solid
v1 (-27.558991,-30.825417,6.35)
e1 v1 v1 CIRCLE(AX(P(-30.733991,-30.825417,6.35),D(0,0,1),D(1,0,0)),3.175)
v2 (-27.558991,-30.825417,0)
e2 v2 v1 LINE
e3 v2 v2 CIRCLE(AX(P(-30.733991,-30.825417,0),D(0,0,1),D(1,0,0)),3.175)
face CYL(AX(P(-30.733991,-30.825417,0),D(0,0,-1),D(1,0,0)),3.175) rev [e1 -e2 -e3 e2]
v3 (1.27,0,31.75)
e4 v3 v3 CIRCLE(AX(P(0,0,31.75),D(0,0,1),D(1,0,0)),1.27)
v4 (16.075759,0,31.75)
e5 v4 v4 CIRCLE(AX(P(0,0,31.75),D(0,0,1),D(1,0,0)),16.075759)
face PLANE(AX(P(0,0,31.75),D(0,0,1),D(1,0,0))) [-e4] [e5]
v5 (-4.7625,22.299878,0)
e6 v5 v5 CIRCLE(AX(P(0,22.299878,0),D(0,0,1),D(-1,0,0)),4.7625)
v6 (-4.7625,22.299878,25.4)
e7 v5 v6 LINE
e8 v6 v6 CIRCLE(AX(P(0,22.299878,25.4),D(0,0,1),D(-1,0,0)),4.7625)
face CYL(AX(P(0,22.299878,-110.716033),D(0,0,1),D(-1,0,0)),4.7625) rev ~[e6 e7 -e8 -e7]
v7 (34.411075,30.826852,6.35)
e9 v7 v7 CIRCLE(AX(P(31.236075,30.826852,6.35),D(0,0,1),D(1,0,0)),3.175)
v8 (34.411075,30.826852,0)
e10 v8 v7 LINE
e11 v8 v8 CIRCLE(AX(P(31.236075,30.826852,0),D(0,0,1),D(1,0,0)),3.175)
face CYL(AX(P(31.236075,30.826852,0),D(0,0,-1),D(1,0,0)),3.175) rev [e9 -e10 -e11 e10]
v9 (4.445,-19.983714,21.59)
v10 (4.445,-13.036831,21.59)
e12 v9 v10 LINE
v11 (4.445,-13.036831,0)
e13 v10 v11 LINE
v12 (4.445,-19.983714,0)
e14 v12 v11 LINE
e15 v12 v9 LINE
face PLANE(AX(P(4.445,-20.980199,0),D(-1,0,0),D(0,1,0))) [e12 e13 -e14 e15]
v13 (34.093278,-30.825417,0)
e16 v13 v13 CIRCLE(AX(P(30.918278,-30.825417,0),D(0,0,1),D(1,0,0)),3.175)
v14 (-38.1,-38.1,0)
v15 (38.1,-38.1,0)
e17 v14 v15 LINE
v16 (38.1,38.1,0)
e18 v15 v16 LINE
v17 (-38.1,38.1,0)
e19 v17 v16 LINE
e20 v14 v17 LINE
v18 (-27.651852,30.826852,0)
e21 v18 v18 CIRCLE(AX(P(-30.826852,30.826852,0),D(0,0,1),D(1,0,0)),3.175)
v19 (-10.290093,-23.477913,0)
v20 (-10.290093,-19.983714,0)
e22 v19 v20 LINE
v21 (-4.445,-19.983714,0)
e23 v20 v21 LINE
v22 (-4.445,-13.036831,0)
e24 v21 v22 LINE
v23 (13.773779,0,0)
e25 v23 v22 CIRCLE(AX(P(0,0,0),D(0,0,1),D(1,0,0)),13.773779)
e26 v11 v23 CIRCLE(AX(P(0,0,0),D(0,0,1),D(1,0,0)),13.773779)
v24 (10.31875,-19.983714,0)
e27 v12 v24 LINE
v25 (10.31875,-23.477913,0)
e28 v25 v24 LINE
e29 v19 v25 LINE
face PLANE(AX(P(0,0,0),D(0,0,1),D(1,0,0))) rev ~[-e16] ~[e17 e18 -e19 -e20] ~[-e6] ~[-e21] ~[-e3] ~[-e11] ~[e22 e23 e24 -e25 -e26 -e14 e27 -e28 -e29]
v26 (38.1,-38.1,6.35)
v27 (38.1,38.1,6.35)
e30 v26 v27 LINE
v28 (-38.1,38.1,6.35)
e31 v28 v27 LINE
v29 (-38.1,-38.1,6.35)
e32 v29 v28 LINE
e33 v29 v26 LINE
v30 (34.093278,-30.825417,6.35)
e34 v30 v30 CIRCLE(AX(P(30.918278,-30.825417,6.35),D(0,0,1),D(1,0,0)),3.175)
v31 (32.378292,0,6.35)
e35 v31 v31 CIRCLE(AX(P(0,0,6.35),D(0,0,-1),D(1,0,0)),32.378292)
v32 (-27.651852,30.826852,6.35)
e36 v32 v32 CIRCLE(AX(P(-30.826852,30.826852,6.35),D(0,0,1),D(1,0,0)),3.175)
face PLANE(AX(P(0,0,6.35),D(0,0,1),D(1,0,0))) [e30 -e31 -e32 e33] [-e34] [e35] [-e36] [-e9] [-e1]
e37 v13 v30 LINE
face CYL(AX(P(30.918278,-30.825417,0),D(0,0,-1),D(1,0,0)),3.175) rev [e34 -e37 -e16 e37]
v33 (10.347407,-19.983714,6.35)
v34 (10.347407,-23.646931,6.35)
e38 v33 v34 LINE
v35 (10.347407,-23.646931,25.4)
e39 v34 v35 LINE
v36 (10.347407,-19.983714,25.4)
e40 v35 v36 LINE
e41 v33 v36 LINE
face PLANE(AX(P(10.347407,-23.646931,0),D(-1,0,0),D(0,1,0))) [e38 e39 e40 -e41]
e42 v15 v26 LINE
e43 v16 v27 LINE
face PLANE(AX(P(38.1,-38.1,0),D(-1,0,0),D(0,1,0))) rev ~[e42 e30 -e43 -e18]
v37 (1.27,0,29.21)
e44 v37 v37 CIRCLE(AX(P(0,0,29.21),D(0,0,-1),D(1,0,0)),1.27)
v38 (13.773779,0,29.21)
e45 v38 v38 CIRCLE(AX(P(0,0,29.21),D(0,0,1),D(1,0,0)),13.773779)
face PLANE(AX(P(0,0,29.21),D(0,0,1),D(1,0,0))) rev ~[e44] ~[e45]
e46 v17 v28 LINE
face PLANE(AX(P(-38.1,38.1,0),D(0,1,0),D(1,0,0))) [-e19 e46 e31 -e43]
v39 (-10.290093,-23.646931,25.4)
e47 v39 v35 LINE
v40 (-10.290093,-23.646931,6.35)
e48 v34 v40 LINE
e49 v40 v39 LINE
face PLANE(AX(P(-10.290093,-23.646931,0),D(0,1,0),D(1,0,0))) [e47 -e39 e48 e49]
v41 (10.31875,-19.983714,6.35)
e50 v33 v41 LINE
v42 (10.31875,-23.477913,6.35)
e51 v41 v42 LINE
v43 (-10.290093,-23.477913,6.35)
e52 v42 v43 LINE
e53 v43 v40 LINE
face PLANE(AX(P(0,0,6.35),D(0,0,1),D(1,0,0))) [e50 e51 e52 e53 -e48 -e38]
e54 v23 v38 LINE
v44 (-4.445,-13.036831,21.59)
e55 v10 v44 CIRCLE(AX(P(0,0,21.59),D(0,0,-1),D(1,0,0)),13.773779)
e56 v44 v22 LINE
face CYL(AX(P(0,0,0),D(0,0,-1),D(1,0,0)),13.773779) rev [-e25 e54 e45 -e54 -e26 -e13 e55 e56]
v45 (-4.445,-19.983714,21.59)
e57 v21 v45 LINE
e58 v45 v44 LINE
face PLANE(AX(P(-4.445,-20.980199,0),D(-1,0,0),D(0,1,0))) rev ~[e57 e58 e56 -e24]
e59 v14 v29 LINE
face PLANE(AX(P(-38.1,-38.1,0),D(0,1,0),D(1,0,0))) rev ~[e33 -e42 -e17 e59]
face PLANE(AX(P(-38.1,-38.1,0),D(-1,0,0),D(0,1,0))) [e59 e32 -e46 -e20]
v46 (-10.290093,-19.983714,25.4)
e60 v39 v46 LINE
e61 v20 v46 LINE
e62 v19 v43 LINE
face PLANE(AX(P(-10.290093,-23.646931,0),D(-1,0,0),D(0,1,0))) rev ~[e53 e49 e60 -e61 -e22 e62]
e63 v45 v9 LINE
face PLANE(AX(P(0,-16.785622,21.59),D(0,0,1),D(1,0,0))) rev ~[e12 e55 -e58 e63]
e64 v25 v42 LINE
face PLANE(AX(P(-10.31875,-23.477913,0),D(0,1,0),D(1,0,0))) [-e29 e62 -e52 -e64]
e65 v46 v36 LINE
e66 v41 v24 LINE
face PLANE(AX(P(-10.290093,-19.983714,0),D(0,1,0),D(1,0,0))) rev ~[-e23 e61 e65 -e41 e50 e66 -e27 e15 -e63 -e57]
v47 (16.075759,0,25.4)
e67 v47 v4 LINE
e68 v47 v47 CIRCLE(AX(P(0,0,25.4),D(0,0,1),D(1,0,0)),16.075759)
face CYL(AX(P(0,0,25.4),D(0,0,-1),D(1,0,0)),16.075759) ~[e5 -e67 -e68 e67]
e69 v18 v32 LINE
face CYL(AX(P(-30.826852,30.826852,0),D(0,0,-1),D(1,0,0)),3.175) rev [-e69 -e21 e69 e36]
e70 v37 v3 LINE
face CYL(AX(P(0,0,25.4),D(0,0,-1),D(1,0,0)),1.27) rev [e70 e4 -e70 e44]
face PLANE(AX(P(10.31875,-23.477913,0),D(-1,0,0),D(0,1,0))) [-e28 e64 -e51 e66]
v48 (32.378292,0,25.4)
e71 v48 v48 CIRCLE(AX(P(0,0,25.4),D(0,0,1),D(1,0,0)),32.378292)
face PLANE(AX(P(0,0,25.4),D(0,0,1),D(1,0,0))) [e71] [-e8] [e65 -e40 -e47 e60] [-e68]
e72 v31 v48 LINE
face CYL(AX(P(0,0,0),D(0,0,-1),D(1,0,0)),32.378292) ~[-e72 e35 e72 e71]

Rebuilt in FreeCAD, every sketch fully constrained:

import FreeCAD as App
import Part
import Sketcher
Q = App.Units.Quantity

doc = App.newDocument("Part")
body = doc.addObject("PartDesign::Body", "Body")

# Sketch on XY plane
sketch1 = body.newObject("Sketcher::SketchObject", "Sketch")
sketch1.AttachmentSupport = (doc.getObject("XY_Plane"), [""])
sketch1.MapMode = "FlatFace"
sketch1.addGeometry([
    Part.LineSegment(App.Vector(-38.1, 38.1, 0), App.Vector(-38.1, -38.1, 0)),  # 0
    Part.LineSegment(App.Vector(-38.1, -38.1, 0), App.Vector(38.1, -38.1, 0)),  # 1
    Part.LineSegment(App.Vector(38.1, -38.1, 0), App.Vector(38.1, 38.1, 0)),  # 2
    Part.LineSegment(App.Vector(38.1, 38.1, 0), App.Vector(-38.1, 38.1, 0)),  # 3
    Part.Circle(App.Vector(-30.7, -30.8, 0), App.Vector(0, 0, 1), 3.2),  # 4
    Part.Circle(App.Vector(30.9, -30.8, 0), App.Vector(0, 0, 1), 3.2),  # 5
    Part.Circle(App.Vector(-30.8, 30.8, 0), App.Vector(0, 0, 1), 3.2),  # 6
    Part.Circle(App.Vector(31.2, 30.8, 0), App.Vector(0, 0, 1), 3.2),  # 7
], False)
sketch1.addConstraint([
    Sketcher.Constraint("Coincident", 0, 2, 1, 1),
    Sketcher.Constraint("Coincident", 1, 2, 2, 1),
    Sketcher.Constraint("Coincident", 2, 2, 3, 1),
    Sketcher.Constraint("Coincident", 3, 2, 0, 1),
    Sketcher.Constraint("Vertical", 0),
    Sketcher.Constraint("Horizontal", 1),
    Sketcher.Constraint("Vertical", 2),
    Sketcher.Constraint("Horizontal", 3),
    Sketcher.Constraint("Equal", 4, 5),
    Sketcher.Constraint("Equal", 5, 6),
    Sketcher.Constraint("Equal", 6, 7),
    Sketcher.Constraint("Symmetric", 0, 2, 2, 2, -1, 1),
    Sketcher.Constraint("Horizontal", 4, 3, 5, 3),
    Sketcher.Constraint("Horizontal", 6, 3, 7, 3),
    Sketcher.Constraint("Equal", 3, 0),
    Sketcher.Constraint("Diameter", 4, Q("0.25 in")),
    Sketcher.Constraint("DistanceX", 1, 1, 1, 2, Q("3 in")),
    Sketcher.Constraint("DistanceX", 4, 3, -1, 1, 30.733991),
    Sketcher.Constraint("DistanceX", 6, 3, -1, 1, 30.826852),
    Sketcher.Constraint("DistanceY", -1, 1, 6, 3, 30.826852),
    Sketcher.Constraint("DistanceX", 4, 3, 5, 3, 61.652269),
    Sketcher.Constraint("DistanceY", 4, 3, 6, 3, 61.652269),
    Sketcher.Constraint("DistanceX", -1, 1, 7, 3, 31.236075),
])
pad1 = body.newObject("PartDesign::Pad", "Pad")
pad1.Profile = sketch1
pad1.Length = Q("0.25 in")

# Sketch on XY plane
sketch2 = body.newObject("Sketcher::SketchObject", "Sketch001")
sketch2.AttachmentSupport = (doc.getObject("XY_Plane"), [""])
sketch2.MapMode = "FlatFace"
sketch2.addGeometry(Part.Circle(App.Vector(0, 0, 0), App.Vector(0, 0, 1), 14), False)
sketch2.addConstraint([
    Sketcher.Constraint("Coincident", 0, 3, -1, 1),
    Sketcher.Constraint("Diameter", 0, 27.547559),
])
pocket1 = body.newObject("PartDesign::Pocket", "Pocket")
pocket1.Profile = sketch2
pocket1.Length = Q("1 in")
pocket1.Reversed = True

# Sketch on XY plane
sketch3 = body.newObject("Sketcher::SketchObject", "Sketch002")
sketch3.AttachmentSupport = (doc.getObject("XY_Plane"), [""])
sketch3.MapMode = "FlatFace"
sketch3.addGeometry(Part.Circle(App.Vector(0, 22, 0), App.Vector(0, 0, 1), 5), False)
sketch3.addConstraint([
    Sketcher.Constraint("PointOnObject", 0, 3, -2),
    Sketcher.Constraint("Diameter", 0, 10.399635),
    Sketcher.Constraint("DistanceY", -1, 1, 0, 3, 22.299878),
])
pocket2 = body.newObject("PartDesign::Pocket", "Pocket001")
pocket2.Profile = sketch3
pocket2.Length = Q("1 in")
pocket2.Reversed = True

# Sketch on XY plane
sketch4 = body.newObject("Sketcher::SketchObject", "Sketch003")
sketch4.AttachmentSupport = (doc.getObject("XY_Plane"), [""])
sketch4.MapMode = "FlatFace"
sketch4.addGeometry([
    Part.LineSegment(App.Vector(-10.3, -19.8, 0), App.Vector(-10.3, -23.5, 0)),
    Part.LineSegment(App.Vector(-10.3, -23.5, 0), App.Vector(10.3, -23.5, 0)),
    Part.LineSegment(App.Vector(10.3, -23.5, 0), App.Vector(10.3, -19.8, 0)),
    Part.LineSegment(App.Vector(10.3, -19.8, 0), App.Vector(-10.3, -19.8, 0)),
], False)
sketch4.addConstraint([
    Sketcher.Constraint("Coincident", 0, 2, 1, 1),
    Sketcher.Constraint("Coincident", 1, 2, 2, 1),
    Sketcher.Constraint("Coincident", 2, 2, 3, 1),
    Sketcher.Constraint("Coincident", 3, 2, 0, 1),
    Sketcher.Constraint("Vertical", 0),
    Sketcher.Constraint("Horizontal", 1),
    Sketcher.Constraint("Vertical", 2),
    Sketcher.Constraint("Horizontal", 3),
    Sketcher.Constraint("DistanceX", 1, 1, 1, 2, Q("0.8125 in")),
    Sketcher.Constraint("DistanceX", 0, 2, -1, 1, Q("0.40625 in")),
    Sketcher.Constraint("DistanceY", 0, 2, 0, 1, 3.628571),
    Sketcher.Constraint("DistanceY", 2, 2, -1, 1, 19.849341),
])
pocket3 = body.newObject("PartDesign::Pocket", "Pocket002")
pocket3.Profile = sketch4
pocket3.Length = Q("1 in")
pocket3.Reversed = True

# Sketch on XY plane
sketch5 = body.newObject("Sketcher::SketchObject", "Sketch004")
sketch5.AttachmentSupport = (doc.getObject("XY_Plane"), [""])
sketch5.MapMode = "FlatFace"
sketch5.addGeometry([
    Part.Circle(App.Vector(0, 0, 0), App.Vector(0, 0, 1), 32.4),  # 0
    Part.LineSegment(App.Vector(10.3, -23.6, 0), App.Vector(-10.3, -23.6, 0)),  # 1
    Part.LineSegment(App.Vector(-10.3, -23.6, 0), App.Vector(-10.3, -20, 0)),  # 2
    Part.LineSegment(App.Vector(-10.3, -20, 0), App.Vector(10.3, -20, 0)),  # 3
    Part.LineSegment(App.Vector(10.3, -20, 0), App.Vector(10.3, -23.6, 0)),  # 4
], False)
sketch5.addConstraint([
    Sketcher.Constraint("Coincident", 1, 2, 2, 1),
    Sketcher.Constraint("Coincident", 2, 2, 3, 1),
    Sketcher.Constraint("Coincident", 3, 2, 4, 1),
    Sketcher.Constraint("Coincident", 4, 2, 1, 1),
    Sketcher.Constraint("Horizontal", 1),
    Sketcher.Constraint("Vertical", 2),
    Sketcher.Constraint("Horizontal", 3),
    Sketcher.Constraint("Vertical", 4),
    Sketcher.Constraint("Coincident", 0, 3, -1, 1),
    Sketcher.Constraint("DistanceX", 1, 2, 1, 1, Q("0.8125 in")),
    Sketcher.Constraint("Diameter", 0, 64.756585),
    Sketcher.Constraint("DistanceY", 2, 1, 2, 2, 3.663217),
    Sketcher.Constraint("DistanceY", 1, 2, -1, 1, 23.646931),
    Sketcher.Constraint("DistanceX", 1, 2, -1, 1, 10.290093),
])
pad2 = body.newObject("PartDesign::Pad", "Pad001")
pad2.Profile = sketch5
pad2.Length = Q("1 in")

# Sketch on XY plane
sketch6 = body.newObject("Sketcher::SketchObject", "Sketch005")
sketch6.AttachmentSupport = (doc.getObject("XY_Plane"), [""])
sketch6.MapMode = "FlatFace"
sketch6.addGeometry(Part.Circle(App.Vector(0, 22.3, 0), App.Vector(0, 0, 1), 4.8), False)
sketch6.addConstraint([
    Sketcher.Constraint("PointOnObject", 0, 3, -2),
    Sketcher.Constraint("Diameter", 0, Q("0.375 in")),
    Sketcher.Constraint("DistanceY", -1, 1, 0, 3, 22.299878),
])
doc.recompute()
hole = body.newObject("PartDesign::Hole", "Hole")
hole.Profile = sketch6
hole.ThreadType = "None"
hole.Diameter = Q("0.375 in")
hole.DepthType = "ThroughAll"
hole.Reversed = True

# Sketch on XY plane
sketch7 = body.newObject("Sketcher::SketchObject", "Sketch006")
sketch7.AttachmentSupport = (doc.getObject("XY_Plane"), [""])
sketch7.MapMode = "FlatFace"
sketch7.AttachmentOffset = App.Placement(App.Vector(0, 0, 1 * 25.4), App.Rotation())
sketch7.addGeometry([
    Part.Circle(App.Vector(0, 0, 0), App.Vector(0, 0, 1), 16.1),
    Part.Circle(App.Vector(0, 0, 0), App.Vector(0, 0, 1), 1.3),
], False)
sketch7.addConstraint([
    Sketcher.Constraint("Coincident", 0, 3, -1, 1),
    Sketcher.Constraint("Coincident", 1, 3, -1, 1),
    Sketcher.Constraint("Diameter", 1, Q("0.1 in")),
    Sketcher.Constraint("Diameter", 0, 32.151519),
])
pad3 = body.newObject("PartDesign::Pad", "Pad002")
pad3.Profile = sketch7
pad3.Length = Q("0.25 in")

# Sketch on XY plane
sketch8 = body.newObject("Sketcher::SketchObject", "Sketch007")
sketch8.AttachmentSupport = (doc.getObject("XY_Plane"), [""])
sketch8.MapMode = "FlatFace"
sketch8.addGeometry(Part.Circle(App.Vector(0, 0, 0), App.Vector(0, 0, 1), 14), False)
sketch8.addConstraint([
    Sketcher.Constraint("Coincident", 0, 3, -1, 1),
    Sketcher.Constraint("Diameter", 0, 27.547559),
])
pocket4 = body.newObject("PartDesign::Pocket", "Pocket003")
pocket4.Profile = sketch8
pocket4.Length = Q("1.15 in")
pocket4.Reversed = True

# Sketch on XY plane
sketch9 = body.newObject("Sketcher::SketchObject", "Sketch008")
sketch9.AttachmentSupport = (doc.getObject("XY_Plane"), [""])
sketch9.MapMode = "FlatFace"
sketch9.addGeometry([
    Part.LineSegment(App.Vector(-4, -13, 0), App.Vector(-4, -21, 0)),
    Part.LineSegment(App.Vector(-4, -21, 0), App.Vector(4, -21, 0)),
    Part.LineSegment(App.Vector(4, -21, 0), App.Vector(4, -13, 0)),
    Part.LineSegment(App.Vector(4, -13, 0), App.Vector(-4, -13, 0)),
], False)
sketch9.addConstraint([
    Sketcher.Constraint("Coincident", 0, 2, 1, 1),
    Sketcher.Constraint("Coincident", 1, 2, 2, 1),
    Sketcher.Constraint("Coincident", 2, 2, 3, 1),
    Sketcher.Constraint("Coincident", 3, 2, 0, 1),
    Sketcher.Constraint("Vertical", 0),
    Sketcher.Constraint("Horizontal", 1),
    Sketcher.Constraint("Vertical", 2),
    Sketcher.Constraint("Horizontal", 3),
    Sketcher.Constraint("DistanceX", 1, 1, 1, 2, Q("0.35 in")),
    Sketcher.Constraint("DistanceX", 0, 2, -1, 1, Q("0.175 in")),
    Sketcher.Constraint("DistanceY", 0, 2, -1, 1, 20.980199),
    Sketcher.Constraint("DistanceY", 0, 2, 0, 1, 8.389155),
])
pocket5 = body.newObject("PartDesign::Pocket", "Pocket004")
pocket5.Profile = sketch9
pocket5.Length = Q("0.85 in")
pocket5.Reversed = True

doc.recompute()
